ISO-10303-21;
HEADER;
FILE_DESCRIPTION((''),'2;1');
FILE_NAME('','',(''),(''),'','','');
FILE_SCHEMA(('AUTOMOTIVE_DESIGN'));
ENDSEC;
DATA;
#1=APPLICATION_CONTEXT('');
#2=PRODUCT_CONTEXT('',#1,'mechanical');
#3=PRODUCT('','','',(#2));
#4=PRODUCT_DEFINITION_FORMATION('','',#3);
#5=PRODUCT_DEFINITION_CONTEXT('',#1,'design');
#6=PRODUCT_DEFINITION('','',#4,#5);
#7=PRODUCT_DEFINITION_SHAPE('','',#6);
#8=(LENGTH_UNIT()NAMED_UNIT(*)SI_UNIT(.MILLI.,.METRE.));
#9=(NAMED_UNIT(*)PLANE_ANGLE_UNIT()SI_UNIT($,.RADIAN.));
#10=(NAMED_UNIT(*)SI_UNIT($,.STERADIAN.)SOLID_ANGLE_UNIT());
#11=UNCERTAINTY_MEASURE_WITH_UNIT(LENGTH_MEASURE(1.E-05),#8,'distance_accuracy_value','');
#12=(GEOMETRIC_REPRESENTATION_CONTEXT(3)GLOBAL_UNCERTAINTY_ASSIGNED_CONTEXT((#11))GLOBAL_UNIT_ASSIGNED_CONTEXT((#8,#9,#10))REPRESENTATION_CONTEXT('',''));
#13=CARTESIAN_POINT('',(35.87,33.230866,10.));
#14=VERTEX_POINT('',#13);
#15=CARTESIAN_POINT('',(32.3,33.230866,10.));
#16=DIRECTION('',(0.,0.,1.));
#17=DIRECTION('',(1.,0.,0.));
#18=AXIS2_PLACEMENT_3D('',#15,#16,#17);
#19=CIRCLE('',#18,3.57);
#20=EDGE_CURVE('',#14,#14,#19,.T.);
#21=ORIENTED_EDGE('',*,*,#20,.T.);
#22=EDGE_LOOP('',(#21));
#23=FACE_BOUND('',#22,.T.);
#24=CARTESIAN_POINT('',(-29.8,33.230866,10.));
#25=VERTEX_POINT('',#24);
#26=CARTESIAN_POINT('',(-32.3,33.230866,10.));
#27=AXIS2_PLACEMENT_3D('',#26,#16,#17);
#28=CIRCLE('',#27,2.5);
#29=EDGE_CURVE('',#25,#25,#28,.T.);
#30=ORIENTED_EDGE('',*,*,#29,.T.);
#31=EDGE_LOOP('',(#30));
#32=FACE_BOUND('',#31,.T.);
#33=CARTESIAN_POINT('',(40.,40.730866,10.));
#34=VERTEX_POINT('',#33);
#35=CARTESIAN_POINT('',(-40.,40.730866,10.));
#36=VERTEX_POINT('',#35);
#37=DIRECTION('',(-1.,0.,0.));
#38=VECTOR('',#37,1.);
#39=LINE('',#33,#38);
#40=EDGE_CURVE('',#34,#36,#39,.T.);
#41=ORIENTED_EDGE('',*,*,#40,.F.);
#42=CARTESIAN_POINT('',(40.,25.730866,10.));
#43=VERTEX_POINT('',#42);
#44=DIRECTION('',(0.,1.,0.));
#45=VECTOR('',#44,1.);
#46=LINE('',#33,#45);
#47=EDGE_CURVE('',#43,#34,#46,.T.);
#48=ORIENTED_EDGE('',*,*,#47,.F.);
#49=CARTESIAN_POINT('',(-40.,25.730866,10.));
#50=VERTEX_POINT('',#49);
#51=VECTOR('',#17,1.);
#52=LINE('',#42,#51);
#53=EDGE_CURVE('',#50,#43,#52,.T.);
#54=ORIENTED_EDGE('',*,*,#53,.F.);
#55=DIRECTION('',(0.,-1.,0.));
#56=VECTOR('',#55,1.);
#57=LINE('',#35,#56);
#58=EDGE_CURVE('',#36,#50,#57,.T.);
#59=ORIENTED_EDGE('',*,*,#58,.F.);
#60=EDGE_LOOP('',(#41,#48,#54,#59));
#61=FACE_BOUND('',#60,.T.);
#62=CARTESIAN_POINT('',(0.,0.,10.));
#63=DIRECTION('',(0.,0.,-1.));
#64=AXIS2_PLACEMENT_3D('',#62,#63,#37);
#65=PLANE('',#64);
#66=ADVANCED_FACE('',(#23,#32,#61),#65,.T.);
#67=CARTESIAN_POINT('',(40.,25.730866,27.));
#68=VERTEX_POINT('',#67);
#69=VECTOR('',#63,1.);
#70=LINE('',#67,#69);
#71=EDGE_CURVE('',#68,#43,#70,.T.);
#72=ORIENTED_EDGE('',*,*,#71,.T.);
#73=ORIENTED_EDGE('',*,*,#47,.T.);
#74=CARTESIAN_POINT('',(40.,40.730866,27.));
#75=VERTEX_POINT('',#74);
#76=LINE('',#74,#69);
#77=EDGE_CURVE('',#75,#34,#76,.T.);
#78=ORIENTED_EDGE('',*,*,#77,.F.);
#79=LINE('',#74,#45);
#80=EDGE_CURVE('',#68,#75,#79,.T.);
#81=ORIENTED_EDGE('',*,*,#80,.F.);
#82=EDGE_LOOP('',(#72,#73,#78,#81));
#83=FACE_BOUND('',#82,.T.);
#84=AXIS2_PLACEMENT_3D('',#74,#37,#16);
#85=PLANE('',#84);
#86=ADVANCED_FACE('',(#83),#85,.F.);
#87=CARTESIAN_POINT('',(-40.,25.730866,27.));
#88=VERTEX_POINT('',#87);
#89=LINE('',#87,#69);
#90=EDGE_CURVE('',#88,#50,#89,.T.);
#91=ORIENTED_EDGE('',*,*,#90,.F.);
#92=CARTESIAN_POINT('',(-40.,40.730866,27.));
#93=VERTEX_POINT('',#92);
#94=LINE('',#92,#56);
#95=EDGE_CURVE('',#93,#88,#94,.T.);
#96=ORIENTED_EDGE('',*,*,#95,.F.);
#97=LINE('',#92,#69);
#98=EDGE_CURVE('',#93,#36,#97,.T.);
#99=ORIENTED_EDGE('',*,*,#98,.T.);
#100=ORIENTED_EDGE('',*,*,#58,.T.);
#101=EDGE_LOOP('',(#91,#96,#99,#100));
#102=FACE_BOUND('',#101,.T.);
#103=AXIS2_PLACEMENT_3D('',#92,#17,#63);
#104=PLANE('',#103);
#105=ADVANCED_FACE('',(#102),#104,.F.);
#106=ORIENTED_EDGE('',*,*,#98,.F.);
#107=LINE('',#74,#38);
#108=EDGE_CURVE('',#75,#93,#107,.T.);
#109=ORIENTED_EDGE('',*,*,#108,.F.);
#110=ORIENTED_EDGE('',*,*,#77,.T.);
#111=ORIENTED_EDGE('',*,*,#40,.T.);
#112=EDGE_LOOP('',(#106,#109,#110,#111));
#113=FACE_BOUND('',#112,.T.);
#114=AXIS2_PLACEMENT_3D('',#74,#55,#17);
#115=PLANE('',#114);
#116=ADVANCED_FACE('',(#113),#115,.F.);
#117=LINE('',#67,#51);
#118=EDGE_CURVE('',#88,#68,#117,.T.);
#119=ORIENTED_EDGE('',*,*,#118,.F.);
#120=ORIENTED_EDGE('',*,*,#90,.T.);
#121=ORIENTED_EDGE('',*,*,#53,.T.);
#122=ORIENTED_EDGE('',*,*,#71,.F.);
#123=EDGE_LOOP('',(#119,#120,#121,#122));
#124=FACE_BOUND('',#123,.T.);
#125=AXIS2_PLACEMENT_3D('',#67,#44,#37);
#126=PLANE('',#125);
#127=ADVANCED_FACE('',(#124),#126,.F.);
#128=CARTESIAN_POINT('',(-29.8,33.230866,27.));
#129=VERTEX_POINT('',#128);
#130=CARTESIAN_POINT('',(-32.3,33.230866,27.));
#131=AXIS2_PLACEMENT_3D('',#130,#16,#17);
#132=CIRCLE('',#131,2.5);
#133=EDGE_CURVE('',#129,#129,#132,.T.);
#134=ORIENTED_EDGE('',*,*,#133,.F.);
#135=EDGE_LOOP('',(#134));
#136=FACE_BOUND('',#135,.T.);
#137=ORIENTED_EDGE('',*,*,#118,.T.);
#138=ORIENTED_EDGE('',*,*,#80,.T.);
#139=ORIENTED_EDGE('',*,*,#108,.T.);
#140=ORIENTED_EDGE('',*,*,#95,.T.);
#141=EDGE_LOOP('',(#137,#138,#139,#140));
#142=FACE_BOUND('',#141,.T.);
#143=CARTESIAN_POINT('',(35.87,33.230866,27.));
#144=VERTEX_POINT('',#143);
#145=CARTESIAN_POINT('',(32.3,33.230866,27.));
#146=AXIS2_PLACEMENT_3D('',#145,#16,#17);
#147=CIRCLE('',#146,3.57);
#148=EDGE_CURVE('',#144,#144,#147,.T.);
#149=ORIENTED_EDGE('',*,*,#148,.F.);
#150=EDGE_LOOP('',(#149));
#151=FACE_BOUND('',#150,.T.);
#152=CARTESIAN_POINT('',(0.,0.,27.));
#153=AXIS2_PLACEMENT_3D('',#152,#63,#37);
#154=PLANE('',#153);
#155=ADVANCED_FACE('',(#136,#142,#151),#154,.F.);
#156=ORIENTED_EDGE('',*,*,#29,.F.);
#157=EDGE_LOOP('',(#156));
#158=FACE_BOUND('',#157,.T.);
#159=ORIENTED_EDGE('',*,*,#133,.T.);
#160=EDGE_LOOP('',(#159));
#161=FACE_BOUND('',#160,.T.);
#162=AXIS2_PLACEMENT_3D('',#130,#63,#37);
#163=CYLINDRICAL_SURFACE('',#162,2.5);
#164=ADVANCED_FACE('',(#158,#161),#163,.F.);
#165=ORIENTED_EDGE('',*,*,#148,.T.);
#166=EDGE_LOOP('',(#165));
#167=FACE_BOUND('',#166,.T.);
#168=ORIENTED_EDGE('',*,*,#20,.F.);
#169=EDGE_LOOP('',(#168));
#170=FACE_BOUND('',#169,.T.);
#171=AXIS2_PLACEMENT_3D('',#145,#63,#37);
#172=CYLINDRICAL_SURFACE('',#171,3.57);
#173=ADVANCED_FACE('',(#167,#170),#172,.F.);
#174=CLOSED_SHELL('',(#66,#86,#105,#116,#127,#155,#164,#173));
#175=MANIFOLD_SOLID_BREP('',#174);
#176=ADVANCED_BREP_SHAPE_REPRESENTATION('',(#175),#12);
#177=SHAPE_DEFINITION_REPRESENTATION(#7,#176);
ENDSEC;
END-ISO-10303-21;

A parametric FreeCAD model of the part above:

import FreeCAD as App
import Part
import Sketcher
Q = App.Units.Quantity

doc = App.newDocument("Part")
body = doc.addObject("PartDesign::Body", "Body")

sketch1 = body.newObject("Sketcher::SketchObject", "Sketch")
sketch1.AttachmentSupport = (doc.getObject("XY_Plane"), [""])
sketch1.MapMode = "FlatFace"
sketch1.AttachmentOffset = App.Placement(App.Vector(0, 0, 10), App.Rotation())
sketch1.addGeometry([
    Part.LineSegment(App.Vector(-40, 40.7, 0), App.Vector(-40, 25.7, 0)),
    Part.LineSegment(App.Vector(-40, 25.7, 0), App.Vector(40, 25.7, 0)),
    Part.LineSegment(App.Vector(40, 25.7, 0), App.Vector(40, 40.7, 0)),
    Part.LineSegment(App.Vector(40, 40.7, 0), App.Vector(-40, 40.7, 0)),
    Part.Circle(App.Vector(-32.3, 33.2, 0), App.Vector(0, 0, 1), 2.5),
    Part.Circle(App.Vector(32.3, 33.2, 0), App.Vector(0, 0, 1), 3.6),
], False)
sketch1.addConstraint([
    Sketcher.Constraint("Coincident", 0, 2, 1, 1),
    Sketcher.Constraint("Coincident", 1, 2, 2, 1),
    Sketcher.Constraint("Coincident", 2, 2, 3, 1),
    Sketcher.Constraint("Coincident", 3, 2, 0, 1),
    Sketcher.Constraint("Vertical", 0),
    Sketcher.Constraint("Horizontal", 1),
    Sketcher.Constraint("Vertical", 2),
    Sketcher.Constraint("Horizontal", 3),
    Sketcher.Constraint("Symmetric", 4, 3, 5, 3, -2),
    Sketcher.Constraint("Diameter", 4, Q("5 mm")),
    Sketcher.Constraint("Diameter", 5, Q("7.14 mm")),
    Sketcher.Constraint("DistanceX", 1, 1, 1, 2, Q("80 mm")),
    Sketcher.Constraint("DistanceY", 0, 2, 0, 1, Q("15 mm")),
    Sketcher.Constraint("DistanceX", 0, 2, -1, 1, Q("40 mm")),
    Sketcher.Constraint("DistanceX", 4, 3, -1, 1, Q("32.3 mm")),
    Sketcher.Constraint("DistanceY", 0, 2, 4, 3, Q("7.5 mm")),
    Sketcher.Constraint("DistanceY", -1, 1, 4, 3, Q("33.230866 mm")),
])
pad1 = body.newObject("PartDesign::Pad", "Pad")
pad1.Profile = sketch1
pad1.Length = 17

doc.recompute()
